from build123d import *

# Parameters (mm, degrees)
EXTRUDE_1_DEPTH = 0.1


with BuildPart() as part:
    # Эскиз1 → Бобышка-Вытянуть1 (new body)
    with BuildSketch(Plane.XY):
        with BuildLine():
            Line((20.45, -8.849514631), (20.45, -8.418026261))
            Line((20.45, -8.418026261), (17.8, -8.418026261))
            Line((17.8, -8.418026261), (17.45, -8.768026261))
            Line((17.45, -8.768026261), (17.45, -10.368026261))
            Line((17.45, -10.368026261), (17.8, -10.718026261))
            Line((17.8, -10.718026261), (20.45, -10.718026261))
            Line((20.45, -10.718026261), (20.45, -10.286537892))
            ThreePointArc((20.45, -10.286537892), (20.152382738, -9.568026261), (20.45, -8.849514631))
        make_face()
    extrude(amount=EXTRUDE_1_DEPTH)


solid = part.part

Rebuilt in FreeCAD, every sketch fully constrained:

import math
import FreeCAD as App
import Part
import Sketcher
Q = App.Units.Quantity

doc = App.newDocument("Part")
body = doc.addObject("PartDesign::Body", "Body")

# Sketch on XY plane
sketch1 = body.newObject("Sketcher::SketchObject", "Sketch")
sketch1.AttachmentSupport = (doc.getObject("XY_Plane"), [""])
sketch1.MapMode = "FlatFace"
sketch1.addGeometry(Part.LineSegment(App.Vector(20.45, -8.85, 0), App.Vector(20.45, -8.42, 0)), False)
sketch1.addGeometry(Part.LineSegment(App.Vector(20.45, -8.42, 0), App.Vector(17.8, -8.42, 0)), False)
sketch1.addGeometry(Part.LineSegment(App.Vector(17.8, -8.42, 0), App.Vector(17.45, -8.77, 0)), False)
sketch1.addGeometry(Part.LineSegment(App.Vector(17.45, -8.77, 0), App.Vector(17.45, -10.37, 0)), False)
sketch1.addGeometry(Part.LineSegment(App.Vector(17.45, -10.37, 0), App.Vector(17.8, -10.72, 0)), False)
sketch1.addGeometry(Part.LineSegment(App.Vector(17.8, -10.72, 0), App.Vector(20.45, -10.72, 0)), False)
sketch1.addGeometry(Part.LineSegment(App.Vector(20.45, -10.72, 0), App.Vector(20.45, -10.29, 0)), False)
sketch1.addGeometry(Part.ArcOfCircle(Part.Circle(App.Vector(21.17, -9.57, 0), App.Vector(0, 0, 1), 1.02), math.radians(135), math.radians(225)), False)
sketch1.addConstraint(Sketcher.Constraint("Coincident", 0, 2, 1, 1))
sketch1.addConstraint(Sketcher.Constraint("Coincident", 1, 2, 2, 1))
sketch1.addConstraint(Sketcher.Constraint("Coincident", 2, 2, 3, 1))
sketch1.addConstraint(Sketcher.Constraint("Coincident", 3, 2, 4, 1))
sketch1.addConstraint(Sketcher.Constraint("Coincident", 4, 2, 5, 1))
sketch1.addConstraint(Sketcher.Constraint("Coincident", 5, 2, 6, 1))
sketch1.addConstraint(Sketcher.Constraint("Coincident", 6, 2, 7, 2))
sketch1.addConstraint(Sketcher.Constraint("Coincident", 7, 1, 0, 1))
sketch1.addConstraint(Sketcher.Constraint("Vertical", 0))
sketch1.addConstraint(Sketcher.Constraint("Horizontal", 1))
sketch1.addConstraint(Sketcher.Constraint("Vertical", 3))
sketch1.addConstraint(Sketcher.Constraint("Horizontal", 5))
sketch1.addConstraint(Sketcher.Constraint("Vertical", 6))
sketch1.addConstraint(Sketcher.Constraint("Perpendicular", 2, 4))
sketch1.addConstraint(Sketcher.Constraint("Vertical", 1, 2, 4, 2))
sketch1.addConstraint(Sketcher.Constraint("Vertical", 0, 2, 5, 2))
sketch1.addConstraint(Sketcher.Constraint("Equal", 0, 6))
sketch1.addConstraint(Sketcher.Constraint("Equal", 2, 4))
sketch1.addConstraint(Sketcher.Constraint("DistanceY", 3, 2, 3, 1, Q("1.6 mm")))
sketch1.addConstraint(Sketcher.Constraint("DistanceX", 2, 2, 0, 2, Q("3 mm")))
sketch1.addConstraint(Sketcher.Constraint("DistanceX", 1, 2, 1, 1, Q("2.65 mm")))
sketch1.addConstraint(Sketcher.Constraint("DistanceX", -1, 1, 1, 2, Q("17.8 mm")))
sketch1.addConstraint(Sketcher.Constraint("Radius", 7, Q("1.016129 mm")))
sketch1.addConstraint(Sketcher.Constraint("DistanceY", 0, 1, 0, 2, Q("0.431488 mm")))
sketch1.addConstraint(Sketcher.Constraint("DistanceY", 7, 3, -1, 1, Q("9.568026 mm")))
pad1 = body.newObject("PartDesign::Pad", "Pad")
pad1.Profile = sketch1
pad1.Length = 0.1

doc.recompute()
